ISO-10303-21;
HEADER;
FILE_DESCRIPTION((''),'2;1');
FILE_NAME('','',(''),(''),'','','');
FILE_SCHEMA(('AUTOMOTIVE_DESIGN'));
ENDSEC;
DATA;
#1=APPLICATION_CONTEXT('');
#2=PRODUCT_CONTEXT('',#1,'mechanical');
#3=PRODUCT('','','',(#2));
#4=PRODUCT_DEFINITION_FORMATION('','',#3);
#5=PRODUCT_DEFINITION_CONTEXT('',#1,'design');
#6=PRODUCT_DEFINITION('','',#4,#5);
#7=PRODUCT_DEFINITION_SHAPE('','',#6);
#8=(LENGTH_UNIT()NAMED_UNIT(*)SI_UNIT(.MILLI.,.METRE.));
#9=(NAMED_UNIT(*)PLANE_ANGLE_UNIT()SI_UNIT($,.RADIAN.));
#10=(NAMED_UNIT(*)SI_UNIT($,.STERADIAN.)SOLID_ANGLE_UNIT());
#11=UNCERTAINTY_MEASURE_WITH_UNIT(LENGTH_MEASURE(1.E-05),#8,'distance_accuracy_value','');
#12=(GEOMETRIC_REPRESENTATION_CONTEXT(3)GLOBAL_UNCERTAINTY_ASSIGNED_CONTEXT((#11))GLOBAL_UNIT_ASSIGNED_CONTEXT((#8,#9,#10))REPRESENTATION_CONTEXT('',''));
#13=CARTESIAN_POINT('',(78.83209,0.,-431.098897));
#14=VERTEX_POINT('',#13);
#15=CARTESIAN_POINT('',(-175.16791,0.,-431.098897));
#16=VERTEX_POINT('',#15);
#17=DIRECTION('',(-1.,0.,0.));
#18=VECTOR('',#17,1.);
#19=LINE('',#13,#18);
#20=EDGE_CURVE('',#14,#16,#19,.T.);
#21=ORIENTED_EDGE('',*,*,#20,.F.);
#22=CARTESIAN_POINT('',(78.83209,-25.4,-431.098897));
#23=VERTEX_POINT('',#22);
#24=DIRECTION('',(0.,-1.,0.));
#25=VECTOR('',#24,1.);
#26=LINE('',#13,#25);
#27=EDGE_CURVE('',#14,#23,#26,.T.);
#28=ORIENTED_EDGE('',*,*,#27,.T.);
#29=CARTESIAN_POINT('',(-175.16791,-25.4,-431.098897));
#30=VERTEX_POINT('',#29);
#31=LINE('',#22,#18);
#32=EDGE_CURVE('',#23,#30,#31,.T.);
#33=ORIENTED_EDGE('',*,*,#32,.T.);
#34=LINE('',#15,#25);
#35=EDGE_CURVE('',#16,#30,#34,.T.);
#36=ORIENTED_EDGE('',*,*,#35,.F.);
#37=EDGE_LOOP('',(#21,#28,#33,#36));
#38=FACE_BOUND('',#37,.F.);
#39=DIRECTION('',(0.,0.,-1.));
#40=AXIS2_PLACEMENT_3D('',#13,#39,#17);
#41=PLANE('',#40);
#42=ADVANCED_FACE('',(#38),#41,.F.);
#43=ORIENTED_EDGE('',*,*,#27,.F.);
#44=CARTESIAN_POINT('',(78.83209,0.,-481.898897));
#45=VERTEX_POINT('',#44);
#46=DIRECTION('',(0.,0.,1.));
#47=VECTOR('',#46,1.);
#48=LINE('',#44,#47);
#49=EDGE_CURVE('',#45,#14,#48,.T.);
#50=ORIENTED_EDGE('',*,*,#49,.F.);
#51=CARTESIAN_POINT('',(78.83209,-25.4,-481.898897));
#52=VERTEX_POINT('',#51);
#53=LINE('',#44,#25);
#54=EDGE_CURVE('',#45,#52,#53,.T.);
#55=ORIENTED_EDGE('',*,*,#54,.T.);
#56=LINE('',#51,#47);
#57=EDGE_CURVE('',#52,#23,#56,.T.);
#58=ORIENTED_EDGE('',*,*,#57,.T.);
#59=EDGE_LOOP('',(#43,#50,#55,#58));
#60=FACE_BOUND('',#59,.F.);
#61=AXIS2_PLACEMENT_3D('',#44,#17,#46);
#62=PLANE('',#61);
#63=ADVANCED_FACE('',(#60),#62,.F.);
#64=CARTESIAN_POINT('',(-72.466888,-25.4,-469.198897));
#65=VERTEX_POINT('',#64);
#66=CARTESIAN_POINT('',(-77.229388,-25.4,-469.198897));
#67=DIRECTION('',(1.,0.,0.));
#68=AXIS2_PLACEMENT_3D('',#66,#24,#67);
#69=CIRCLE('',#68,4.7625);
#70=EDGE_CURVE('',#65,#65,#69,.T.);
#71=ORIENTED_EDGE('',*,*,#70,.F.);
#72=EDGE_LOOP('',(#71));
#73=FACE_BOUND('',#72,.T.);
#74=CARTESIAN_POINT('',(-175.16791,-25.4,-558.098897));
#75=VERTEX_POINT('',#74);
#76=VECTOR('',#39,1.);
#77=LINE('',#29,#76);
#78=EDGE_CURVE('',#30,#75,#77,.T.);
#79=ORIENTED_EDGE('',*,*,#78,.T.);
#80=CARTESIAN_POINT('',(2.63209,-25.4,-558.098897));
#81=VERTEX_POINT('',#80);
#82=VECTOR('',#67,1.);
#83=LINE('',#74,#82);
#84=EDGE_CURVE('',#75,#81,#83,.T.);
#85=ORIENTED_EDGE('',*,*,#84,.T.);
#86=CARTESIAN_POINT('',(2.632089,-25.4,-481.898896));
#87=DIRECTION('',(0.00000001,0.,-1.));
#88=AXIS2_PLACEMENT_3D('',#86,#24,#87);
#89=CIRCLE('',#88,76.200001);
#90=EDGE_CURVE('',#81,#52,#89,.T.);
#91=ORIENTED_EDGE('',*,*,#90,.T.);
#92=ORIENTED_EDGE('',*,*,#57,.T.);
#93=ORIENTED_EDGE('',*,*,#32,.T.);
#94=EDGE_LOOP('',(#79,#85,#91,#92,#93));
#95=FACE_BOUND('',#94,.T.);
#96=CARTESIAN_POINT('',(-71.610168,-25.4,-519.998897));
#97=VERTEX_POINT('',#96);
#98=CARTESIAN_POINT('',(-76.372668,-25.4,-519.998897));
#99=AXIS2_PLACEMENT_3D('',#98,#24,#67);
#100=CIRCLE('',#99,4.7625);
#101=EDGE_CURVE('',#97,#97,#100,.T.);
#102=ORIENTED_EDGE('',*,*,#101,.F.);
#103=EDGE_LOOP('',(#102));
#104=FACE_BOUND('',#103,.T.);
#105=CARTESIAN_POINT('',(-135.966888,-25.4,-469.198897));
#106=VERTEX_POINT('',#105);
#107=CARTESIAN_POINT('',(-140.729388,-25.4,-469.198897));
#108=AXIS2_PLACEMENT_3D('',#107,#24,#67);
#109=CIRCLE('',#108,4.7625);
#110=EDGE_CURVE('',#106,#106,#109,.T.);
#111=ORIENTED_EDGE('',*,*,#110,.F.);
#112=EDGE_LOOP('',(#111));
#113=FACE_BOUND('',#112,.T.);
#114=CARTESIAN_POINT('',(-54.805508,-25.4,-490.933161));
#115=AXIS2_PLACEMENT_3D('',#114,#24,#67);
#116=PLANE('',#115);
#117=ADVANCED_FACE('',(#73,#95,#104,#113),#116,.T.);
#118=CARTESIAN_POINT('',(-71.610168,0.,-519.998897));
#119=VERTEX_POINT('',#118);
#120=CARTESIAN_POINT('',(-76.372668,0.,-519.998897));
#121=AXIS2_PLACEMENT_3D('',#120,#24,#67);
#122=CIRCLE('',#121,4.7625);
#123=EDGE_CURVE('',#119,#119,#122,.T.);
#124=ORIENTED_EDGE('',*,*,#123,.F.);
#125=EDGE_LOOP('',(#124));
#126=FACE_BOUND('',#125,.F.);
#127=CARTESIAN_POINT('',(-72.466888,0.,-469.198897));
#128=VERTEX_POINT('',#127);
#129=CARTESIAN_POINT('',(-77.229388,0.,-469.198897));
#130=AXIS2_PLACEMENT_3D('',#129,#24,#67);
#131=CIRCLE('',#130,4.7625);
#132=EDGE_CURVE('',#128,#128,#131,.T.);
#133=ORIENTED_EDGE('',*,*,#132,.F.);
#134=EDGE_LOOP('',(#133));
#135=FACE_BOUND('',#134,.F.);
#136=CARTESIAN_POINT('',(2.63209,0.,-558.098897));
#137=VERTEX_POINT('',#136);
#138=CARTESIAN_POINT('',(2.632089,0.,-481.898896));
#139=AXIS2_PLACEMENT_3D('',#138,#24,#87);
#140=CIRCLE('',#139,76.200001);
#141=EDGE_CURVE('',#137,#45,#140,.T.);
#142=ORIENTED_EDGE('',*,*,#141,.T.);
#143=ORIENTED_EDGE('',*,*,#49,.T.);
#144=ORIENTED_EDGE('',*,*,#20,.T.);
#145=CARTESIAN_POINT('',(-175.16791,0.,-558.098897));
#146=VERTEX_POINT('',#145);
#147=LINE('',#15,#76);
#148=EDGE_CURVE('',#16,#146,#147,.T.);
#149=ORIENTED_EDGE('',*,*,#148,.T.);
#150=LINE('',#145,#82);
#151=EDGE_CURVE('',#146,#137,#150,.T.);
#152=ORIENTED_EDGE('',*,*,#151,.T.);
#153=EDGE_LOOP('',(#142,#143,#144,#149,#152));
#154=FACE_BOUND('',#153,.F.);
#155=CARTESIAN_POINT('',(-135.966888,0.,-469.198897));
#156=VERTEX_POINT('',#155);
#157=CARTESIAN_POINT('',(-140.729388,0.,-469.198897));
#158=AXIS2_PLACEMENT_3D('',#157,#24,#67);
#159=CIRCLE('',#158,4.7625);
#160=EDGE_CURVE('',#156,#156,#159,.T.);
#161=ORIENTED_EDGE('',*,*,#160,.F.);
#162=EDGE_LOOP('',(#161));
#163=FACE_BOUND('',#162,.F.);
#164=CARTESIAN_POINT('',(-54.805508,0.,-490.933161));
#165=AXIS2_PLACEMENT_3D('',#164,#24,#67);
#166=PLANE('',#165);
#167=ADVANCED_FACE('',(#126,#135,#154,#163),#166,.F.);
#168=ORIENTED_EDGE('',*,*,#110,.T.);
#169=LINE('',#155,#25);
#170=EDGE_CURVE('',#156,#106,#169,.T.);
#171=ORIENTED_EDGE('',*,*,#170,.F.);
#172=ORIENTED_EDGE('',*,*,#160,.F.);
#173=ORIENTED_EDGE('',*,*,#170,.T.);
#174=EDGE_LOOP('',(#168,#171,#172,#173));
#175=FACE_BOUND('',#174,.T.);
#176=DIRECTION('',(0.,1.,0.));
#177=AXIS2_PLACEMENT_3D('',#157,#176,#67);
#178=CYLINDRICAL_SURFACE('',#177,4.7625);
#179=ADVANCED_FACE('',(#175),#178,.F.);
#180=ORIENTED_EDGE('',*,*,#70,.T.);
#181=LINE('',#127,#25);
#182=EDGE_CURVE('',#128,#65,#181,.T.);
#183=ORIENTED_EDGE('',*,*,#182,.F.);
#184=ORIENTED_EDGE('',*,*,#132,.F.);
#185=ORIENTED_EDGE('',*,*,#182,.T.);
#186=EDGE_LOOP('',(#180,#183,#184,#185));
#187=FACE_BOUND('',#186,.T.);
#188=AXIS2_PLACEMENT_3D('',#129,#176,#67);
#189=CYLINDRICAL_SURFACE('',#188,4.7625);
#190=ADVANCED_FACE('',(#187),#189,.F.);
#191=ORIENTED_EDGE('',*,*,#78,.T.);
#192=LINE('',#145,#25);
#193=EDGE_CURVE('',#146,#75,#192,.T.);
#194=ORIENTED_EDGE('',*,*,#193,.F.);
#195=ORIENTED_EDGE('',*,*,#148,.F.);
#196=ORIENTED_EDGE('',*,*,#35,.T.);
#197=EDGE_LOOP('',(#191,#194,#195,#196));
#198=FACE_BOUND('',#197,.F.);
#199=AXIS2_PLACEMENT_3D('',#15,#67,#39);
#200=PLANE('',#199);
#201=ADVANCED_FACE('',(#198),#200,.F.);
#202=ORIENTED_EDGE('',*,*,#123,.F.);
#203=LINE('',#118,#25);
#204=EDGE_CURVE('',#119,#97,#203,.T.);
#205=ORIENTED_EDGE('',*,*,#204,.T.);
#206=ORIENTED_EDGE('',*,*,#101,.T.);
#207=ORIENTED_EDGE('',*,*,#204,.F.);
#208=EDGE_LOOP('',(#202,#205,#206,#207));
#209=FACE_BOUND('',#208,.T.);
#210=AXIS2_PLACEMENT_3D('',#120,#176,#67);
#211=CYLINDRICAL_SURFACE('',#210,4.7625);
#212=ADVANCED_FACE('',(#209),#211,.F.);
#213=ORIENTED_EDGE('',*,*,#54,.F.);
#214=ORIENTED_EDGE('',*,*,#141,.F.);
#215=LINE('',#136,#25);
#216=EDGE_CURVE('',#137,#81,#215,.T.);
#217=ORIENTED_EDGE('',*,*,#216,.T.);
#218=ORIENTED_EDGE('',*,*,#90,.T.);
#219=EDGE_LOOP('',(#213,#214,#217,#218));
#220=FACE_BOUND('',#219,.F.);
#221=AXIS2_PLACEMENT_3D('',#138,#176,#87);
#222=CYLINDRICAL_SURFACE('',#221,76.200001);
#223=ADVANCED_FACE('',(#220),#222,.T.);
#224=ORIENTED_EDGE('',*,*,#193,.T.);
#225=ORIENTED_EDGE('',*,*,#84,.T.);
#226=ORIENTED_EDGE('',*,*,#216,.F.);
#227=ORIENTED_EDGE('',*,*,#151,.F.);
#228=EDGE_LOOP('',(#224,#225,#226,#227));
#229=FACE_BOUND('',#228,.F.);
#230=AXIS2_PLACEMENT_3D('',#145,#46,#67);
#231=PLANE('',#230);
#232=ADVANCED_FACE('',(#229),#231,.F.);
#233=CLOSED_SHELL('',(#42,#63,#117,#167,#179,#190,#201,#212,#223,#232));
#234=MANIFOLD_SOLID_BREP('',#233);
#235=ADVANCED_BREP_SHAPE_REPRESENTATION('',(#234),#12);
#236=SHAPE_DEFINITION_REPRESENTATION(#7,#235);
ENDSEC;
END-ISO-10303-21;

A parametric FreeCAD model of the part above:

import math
import FreeCAD as App
import Part
import Sketcher

V = App.Vector
Q = App.Units.Quantity

doc = App.newDocument("Part")
body = doc.addObject("PartDesign::Body", "Body")

# Sketch on XZ plane
sketch1 = body.newObject("Sketcher::SketchObject", "Sketch")
sketch1.AttachmentSupport = (doc.getObject("XZ_Plane"), [""])
sketch1.MapMode = "FlatFace"
sketch1.addGeometry([
    Part.LineSegment(V(78.8, -431.1, 0), V(-175.2, -431.1, 0)),  # 0
    Part.LineSegment(V(-175.2, -431.1, 0), V(-175.2, -558.1, 0)),  # 1
    Part.LineSegment(V(-175.2, -558.1, 0), V(2.6, -558.1, 0)),  # 2
    Part.ArcOfCircle(Part.Circle(V(2.6, -481.9, 0), V(0, 0, 1), 76.2), math.radians(-90), math.radians(0)),  # 3
    Part.LineSegment(V(78.8, -481.9, 0), V(78.8, -431.1, 0)),  # 4
    Part.Circle(V(-76.4, -520, 0), V(0, 0, 1), 4.8),  # 5
    Part.Circle(V(-140.7, -469.2, 0), V(0, 0, 1), 4.8),  # 6
    Part.Circle(V(-77.2, -469.2, 0), V(0, 0, 1), 4.8),  # 7
], False)
sketch1.addConstraint([
    Sketcher.Constraint("Coincident", 0, 2, 1, 1),
    Sketcher.Constraint("Coincident", 1, 2, 2, 1),
    Sketcher.Constraint("Tangent", 2, 2, 3, 1),
    Sketcher.Constraint("Tangent", 3, 2, 4, 1),
    Sketcher.Constraint("Coincident", 4, 2, 0, 1),
    Sketcher.Constraint("Horizontal", 0),
    Sketcher.Constraint("Vertical", 1),
    Sketcher.Constraint("Horizontal", 2),
    Sketcher.Constraint("Vertical", 4),
    Sketcher.Constraint("Equal", 5, 6),
    Sketcher.Constraint("Equal", 6, 7),
    Sketcher.Constraint("Horizontal", 6, 3, 7, 3),
    Sketcher.Constraint("Radius", 3, Q("3 in")),
    Sketcher.Constraint("DistanceX", 0, 2, 0, 1, Q("10 in")),
    Sketcher.Constraint("DistanceY", 1, 2, 1, 1, Q("5 in")),
    Sketcher.Constraint("Diameter", 5, Q("0.375 in")),
    Sketcher.Constraint("DistanceY", 5, 3, 6, 3, Q("2 in")),
    Sketcher.Constraint("DistanceY", 5, 3, 3, 3, Q("1.5 in")),
    Sketcher.Constraint("DistanceX", 6, 3, 7, 3, Q("2.5 in")),
    Sketcher.Constraint("DistanceX", -1, 1, 3, 3, Q("2.632089 mm")),
    Sketcher.Constraint("DistanceX", 5, 3, -1, 1, Q("76.372668 mm")),
    Sketcher.Constraint("DistanceX", 6, 3, -1, 1, Q("140.729388 mm")),
    Sketcher.Constraint("DistanceY", 3, 3, -1, 1, Q("481.898896 mm")),
])
pad1 = body.newObject("PartDesign::Pad", "Pad")
pad1.Profile = sketch1
pad1.Length = Q("1 in")

doc.recompute()
